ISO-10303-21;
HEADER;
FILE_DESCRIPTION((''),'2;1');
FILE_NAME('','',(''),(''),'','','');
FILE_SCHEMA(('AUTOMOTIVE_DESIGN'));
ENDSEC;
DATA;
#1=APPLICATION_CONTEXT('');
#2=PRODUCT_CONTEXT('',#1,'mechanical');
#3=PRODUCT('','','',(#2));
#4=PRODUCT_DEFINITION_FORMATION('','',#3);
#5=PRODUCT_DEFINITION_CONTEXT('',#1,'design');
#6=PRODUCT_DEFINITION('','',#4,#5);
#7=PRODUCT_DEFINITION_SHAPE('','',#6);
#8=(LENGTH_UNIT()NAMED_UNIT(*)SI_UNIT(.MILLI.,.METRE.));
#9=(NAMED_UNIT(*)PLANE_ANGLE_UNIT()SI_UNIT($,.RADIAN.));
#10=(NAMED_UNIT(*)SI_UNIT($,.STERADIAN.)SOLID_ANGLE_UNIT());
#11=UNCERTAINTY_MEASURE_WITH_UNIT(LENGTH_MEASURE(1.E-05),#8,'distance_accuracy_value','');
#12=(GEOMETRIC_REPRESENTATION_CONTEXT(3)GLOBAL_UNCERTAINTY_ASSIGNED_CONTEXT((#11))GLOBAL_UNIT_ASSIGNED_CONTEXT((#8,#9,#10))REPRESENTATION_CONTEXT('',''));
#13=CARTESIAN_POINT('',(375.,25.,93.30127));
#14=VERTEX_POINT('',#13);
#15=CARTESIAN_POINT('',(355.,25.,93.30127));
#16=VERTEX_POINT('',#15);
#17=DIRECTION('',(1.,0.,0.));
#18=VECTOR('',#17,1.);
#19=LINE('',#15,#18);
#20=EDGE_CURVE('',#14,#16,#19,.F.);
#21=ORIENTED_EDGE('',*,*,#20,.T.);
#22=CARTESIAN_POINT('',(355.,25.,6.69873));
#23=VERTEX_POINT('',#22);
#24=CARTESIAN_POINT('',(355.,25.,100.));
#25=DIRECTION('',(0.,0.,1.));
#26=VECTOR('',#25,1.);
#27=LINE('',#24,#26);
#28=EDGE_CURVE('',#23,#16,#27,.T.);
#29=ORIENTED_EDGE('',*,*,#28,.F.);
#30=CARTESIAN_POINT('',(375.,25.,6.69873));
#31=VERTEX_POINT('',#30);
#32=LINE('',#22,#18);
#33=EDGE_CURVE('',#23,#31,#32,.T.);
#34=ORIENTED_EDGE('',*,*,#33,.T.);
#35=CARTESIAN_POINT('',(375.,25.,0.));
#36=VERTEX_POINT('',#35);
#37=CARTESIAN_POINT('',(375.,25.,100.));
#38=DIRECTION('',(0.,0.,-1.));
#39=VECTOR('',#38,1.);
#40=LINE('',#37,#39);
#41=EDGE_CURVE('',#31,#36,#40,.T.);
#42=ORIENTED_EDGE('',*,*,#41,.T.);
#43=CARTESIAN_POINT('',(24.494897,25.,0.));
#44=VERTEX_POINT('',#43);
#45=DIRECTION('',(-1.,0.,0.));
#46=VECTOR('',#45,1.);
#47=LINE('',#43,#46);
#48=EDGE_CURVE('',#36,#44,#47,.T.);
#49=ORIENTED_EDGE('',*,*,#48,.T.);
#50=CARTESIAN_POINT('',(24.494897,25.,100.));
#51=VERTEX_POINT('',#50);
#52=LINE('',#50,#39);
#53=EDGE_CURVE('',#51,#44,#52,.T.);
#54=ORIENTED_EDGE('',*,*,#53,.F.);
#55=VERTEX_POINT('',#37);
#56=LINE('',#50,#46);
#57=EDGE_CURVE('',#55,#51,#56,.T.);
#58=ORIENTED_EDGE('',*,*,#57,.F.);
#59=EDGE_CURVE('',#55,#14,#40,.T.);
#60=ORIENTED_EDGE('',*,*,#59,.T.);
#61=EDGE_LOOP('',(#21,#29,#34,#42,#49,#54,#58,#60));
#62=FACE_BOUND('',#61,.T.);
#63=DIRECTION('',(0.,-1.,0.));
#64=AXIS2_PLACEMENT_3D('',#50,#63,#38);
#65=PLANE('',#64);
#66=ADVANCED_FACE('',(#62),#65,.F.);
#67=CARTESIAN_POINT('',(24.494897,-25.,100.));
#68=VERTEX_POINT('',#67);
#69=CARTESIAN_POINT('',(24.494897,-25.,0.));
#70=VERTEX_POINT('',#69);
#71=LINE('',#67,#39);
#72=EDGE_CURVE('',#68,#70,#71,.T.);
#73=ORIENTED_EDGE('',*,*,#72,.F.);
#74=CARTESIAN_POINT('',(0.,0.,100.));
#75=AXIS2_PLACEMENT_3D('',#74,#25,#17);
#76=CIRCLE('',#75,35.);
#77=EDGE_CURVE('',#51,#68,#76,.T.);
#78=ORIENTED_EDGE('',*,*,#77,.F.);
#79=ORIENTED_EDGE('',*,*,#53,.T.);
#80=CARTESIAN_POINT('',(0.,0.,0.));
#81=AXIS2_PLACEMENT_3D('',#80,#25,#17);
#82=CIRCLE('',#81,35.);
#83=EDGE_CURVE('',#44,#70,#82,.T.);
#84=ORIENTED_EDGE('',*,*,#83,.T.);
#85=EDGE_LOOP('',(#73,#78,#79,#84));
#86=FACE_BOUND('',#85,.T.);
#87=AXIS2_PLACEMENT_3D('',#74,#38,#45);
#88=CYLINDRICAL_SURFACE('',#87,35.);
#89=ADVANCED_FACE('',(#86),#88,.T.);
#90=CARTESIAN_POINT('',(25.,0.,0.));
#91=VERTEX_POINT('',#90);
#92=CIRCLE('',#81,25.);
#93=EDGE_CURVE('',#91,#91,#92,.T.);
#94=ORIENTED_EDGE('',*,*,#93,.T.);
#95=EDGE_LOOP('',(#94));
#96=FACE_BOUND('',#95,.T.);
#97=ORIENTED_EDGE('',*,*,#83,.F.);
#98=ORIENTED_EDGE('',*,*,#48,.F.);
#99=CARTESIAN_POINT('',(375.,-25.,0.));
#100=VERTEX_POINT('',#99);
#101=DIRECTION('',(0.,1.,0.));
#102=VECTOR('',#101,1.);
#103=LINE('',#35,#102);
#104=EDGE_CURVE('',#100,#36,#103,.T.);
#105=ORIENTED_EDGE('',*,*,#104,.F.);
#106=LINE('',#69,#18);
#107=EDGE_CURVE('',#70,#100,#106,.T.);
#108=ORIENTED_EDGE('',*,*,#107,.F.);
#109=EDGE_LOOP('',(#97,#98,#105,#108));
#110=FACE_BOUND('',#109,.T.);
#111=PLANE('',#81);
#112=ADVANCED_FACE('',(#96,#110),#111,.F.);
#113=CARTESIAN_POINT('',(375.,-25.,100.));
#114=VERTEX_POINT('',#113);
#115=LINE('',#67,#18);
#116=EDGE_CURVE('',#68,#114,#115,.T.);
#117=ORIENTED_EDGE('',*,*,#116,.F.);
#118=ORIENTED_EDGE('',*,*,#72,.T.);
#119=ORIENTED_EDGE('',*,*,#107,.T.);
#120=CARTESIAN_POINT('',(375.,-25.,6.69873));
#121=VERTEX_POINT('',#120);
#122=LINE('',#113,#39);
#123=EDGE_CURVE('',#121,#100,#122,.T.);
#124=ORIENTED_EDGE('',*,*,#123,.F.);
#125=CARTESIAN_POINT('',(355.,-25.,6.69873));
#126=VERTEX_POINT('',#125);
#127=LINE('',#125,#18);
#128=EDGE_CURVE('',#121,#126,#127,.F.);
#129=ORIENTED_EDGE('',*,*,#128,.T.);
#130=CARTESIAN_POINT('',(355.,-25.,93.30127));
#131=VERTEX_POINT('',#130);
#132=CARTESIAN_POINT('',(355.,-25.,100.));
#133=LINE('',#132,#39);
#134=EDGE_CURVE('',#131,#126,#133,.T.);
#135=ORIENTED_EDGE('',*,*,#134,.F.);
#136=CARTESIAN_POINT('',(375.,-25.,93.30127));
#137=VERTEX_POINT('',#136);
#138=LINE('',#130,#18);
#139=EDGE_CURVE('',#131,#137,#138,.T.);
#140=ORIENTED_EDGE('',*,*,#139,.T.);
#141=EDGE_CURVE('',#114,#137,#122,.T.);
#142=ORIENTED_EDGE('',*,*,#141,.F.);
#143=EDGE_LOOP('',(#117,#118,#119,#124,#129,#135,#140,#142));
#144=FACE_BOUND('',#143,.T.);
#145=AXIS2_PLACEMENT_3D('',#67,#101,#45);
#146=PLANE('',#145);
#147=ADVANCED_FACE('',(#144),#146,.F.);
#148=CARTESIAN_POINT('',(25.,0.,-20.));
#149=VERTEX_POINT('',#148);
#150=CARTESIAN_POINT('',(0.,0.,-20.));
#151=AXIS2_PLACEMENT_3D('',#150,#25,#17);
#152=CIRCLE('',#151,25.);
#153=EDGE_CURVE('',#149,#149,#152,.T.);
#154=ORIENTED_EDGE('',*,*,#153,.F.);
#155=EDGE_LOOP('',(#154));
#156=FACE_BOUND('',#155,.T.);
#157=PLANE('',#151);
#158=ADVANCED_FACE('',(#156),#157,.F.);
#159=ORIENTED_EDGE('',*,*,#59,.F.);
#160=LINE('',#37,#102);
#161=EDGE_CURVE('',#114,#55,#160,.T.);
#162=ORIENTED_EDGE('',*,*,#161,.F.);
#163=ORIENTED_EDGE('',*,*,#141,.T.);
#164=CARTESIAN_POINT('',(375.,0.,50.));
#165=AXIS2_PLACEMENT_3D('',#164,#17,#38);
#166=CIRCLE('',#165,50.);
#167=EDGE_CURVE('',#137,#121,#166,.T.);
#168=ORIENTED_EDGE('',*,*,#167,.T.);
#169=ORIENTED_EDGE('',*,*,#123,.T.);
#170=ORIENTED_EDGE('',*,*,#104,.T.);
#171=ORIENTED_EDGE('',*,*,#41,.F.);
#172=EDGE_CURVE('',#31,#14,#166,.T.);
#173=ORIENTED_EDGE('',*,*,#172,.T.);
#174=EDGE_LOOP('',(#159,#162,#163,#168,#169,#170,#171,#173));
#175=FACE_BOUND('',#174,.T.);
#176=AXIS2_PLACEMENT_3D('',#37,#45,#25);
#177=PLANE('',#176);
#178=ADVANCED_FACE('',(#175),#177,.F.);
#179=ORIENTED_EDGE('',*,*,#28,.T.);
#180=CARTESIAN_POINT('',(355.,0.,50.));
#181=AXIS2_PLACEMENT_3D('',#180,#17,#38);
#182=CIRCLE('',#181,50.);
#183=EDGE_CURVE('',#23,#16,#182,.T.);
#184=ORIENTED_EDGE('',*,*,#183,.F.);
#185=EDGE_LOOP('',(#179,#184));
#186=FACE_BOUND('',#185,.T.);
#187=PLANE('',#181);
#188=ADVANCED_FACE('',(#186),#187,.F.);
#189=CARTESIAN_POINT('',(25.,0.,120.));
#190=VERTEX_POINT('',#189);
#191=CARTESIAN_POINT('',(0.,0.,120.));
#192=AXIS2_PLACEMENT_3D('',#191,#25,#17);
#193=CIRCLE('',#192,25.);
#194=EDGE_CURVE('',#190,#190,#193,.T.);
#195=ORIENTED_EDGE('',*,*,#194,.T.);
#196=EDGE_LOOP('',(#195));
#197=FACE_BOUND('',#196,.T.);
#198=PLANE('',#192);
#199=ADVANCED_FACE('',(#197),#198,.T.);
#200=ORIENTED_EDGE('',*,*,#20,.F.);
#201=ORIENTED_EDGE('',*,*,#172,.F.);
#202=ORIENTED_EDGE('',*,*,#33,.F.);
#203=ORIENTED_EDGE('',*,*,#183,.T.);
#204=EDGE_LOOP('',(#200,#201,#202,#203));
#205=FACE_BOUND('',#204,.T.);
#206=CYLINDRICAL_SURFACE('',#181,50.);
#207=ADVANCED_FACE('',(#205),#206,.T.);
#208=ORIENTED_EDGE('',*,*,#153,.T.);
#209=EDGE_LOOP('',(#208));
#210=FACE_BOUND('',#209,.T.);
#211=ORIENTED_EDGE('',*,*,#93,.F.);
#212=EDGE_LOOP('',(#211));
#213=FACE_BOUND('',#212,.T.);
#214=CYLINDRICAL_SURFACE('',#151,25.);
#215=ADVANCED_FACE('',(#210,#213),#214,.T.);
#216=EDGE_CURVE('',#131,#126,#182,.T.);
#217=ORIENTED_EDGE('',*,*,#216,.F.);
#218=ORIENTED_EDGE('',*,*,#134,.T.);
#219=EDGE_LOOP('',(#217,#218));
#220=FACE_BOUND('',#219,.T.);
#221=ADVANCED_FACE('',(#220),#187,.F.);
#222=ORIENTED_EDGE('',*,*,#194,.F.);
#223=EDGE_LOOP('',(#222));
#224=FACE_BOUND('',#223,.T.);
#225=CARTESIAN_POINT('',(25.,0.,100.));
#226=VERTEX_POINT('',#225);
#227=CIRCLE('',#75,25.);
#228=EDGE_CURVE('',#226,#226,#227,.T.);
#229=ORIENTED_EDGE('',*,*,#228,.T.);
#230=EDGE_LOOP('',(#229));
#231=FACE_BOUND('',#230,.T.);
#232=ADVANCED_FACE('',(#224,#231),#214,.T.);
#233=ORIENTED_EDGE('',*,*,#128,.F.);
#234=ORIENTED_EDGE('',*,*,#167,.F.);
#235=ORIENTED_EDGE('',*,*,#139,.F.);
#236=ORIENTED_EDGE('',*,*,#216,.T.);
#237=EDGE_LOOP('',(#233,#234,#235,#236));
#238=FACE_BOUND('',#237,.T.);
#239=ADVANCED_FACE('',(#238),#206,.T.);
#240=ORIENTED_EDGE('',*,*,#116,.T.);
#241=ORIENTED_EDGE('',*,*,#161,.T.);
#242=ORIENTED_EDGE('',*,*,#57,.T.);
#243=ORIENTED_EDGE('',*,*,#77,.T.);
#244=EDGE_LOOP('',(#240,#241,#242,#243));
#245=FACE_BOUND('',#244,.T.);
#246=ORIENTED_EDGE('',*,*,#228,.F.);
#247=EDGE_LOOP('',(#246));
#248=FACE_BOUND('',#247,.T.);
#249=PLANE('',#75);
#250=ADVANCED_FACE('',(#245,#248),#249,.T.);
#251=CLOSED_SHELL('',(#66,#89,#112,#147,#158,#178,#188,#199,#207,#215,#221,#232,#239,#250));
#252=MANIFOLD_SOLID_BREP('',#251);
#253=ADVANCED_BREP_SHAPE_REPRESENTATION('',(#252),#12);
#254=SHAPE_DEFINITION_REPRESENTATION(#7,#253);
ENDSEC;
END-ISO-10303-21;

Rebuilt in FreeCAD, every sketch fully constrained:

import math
import FreeCAD as App
import Part
import Sketcher

V = App.Vector

doc = App.newDocument("Part")
body = doc.addObject("PartDesign::Body", "Body")

sketch1 = body.newObject("Sketcher::SketchObject", "Sketch")
sketch1.AttachmentSupport = (doc.getObject("XY_Plane"), [""])
sketch1.MapMode = "FlatFace"
sketch1.addGeometry([
    Part.LineSegment(V(375, 25, 0), V(24, 25, 0)),
    Part.ArcOfCircle(Part.Circle(V(0, 0, 0), V(0, 0, 1), 35), math.radians(46), math.radians(314)),
    Part.LineSegment(V(24, -25, 0), V(375, -25, 0)),
    Part.LineSegment(V(375, -25, 0), V(375, 25, 0)),
], False)
sketch1.addConstraint([
    Sketcher.Constraint("Coincident", 0, 2, 1, 1),
    Sketcher.Constraint("Coincident", 1, 2, 2, 1),
    Sketcher.Constraint("Coincident", 2, 2, 3, 1),
    Sketcher.Constraint("Coincident", 3, 2, 0, 1),
    Sketcher.Constraint("Horizontal", 0),
    Sketcher.Constraint("Horizontal", 2),
    Sketcher.Constraint("Vertical", 3),
    Sketcher.Constraint("Coincident", 1, 3, -1, 1),
    Sketcher.Constraint("Vertical", 0, 2, 1, 2),
    Sketcher.Constraint("Radius", 1, 35.0),
    Sketcher.Constraint("DistanceY", 3, 1, 3, 2, 50.0),
    Sketcher.Constraint("DistanceX", -1, 1, 2, 2, 375.0),
])
pad1 = body.newObject("PartDesign::Pad", "Pad")
pad1.Profile = sketch1
pad1.Length = 100

sketch2 = body.newObject("Sketcher::SketchObject", "Sketch001")
sketch2.AttachmentSupport = (doc.getObject("YZ_Plane"), [""])
sketch2.MapMode = "FlatFace"
sketch2.AttachmentOffset = App.Placement(V(0, 0, 375), App.Rotation())
sketch2.addGeometry(Part.Circle(V(0, 50, 0), V(0, 0, 1), 50), False)
sketch2.addConstraint([
    Sketcher.Constraint("PointOnObject", 0, 3, -2),
    Sketcher.Constraint("Diameter", 0, 100.0),
    Sketcher.Constraint("DistanceY", -1, 1, 0, 3, 50.0),
])
pad2 = body.newObject("PartDesign::Pad", "Pad001")
pad2.Profile = sketch2
pad2.Length = 20
pad2.Reversed = True

sketch3 = body.newObject("Sketcher::SketchObject", "Sketch002")
sketch3.AttachmentSupport = (doc.getObject("XY_Plane"), [""])
sketch3.MapMode = "FlatFace"
sketch3.AttachmentOffset = App.Placement(V(0, 0, 100), App.Rotation())
sketch3.addGeometry(Part.Circle(V(0, 0, 0), V(0, 0, 1), 25), False)
sketch3.addConstraint([
    Sketcher.Constraint("Coincident", 0, 3, -1, 1),
    Sketcher.Constraint("Diameter", 0, 50.0),
])
pad3 = body.newObject("PartDesign::Pad", "Pad002")
pad3.Profile = sketch3
pad3.Type = "TwoLengths"
pad3.Length = 20
pad3.Length2 = 120

doc.recompute()
